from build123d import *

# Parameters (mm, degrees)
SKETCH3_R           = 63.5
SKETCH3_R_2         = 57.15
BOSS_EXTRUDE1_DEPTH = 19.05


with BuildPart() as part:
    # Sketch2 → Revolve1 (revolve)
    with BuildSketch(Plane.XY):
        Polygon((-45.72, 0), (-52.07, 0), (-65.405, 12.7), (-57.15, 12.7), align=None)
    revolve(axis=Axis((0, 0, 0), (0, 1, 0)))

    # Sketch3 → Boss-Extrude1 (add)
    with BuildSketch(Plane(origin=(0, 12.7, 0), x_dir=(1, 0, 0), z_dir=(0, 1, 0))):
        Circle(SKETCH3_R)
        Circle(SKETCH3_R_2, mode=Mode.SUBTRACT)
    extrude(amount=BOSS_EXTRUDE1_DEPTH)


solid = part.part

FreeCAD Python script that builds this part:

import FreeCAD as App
import Part
import Sketcher
Q = App.Units.Quantity

doc = App.newDocument("Part")
params = doc.addObject("Spreadsheet::Sheet", "Params")
for row, (alias, value) in enumerate([
    ("sketch1_width", "0.25 in"),
    ("sketch1_width2", "0.325 in"),
    ("revolution_angle", "360 deg"),
    ("sketch2_diameter", "5 in"),
    ("sketch2_diameter2", "4.5 in"),
    ("pad1_length", "0.75 in"),
], start=1):
    params.set(f"A{row}", alias)
    params.set(f"B{row}", "=" + value)
    params.setAlias(f"B{row}", alias)

body = doc.addObject("PartDesign::Body", "Body")

# Sketch on XY plane
sketch1 = doc.addObject("Sketcher::SketchObject", "Sketch")
body.addObject(sketch1)
sketch1.AttachmentSupport = (doc.XY_Plane, [""])
sketch1.MapMode = "FlatFace"
sketch1.addGeometry([
    Part.LineSegment(App.Vector(-52, 0, 0), App.Vector(-46, 0, 0)),
    Part.LineSegment(App.Vector(-46, 0, 0), App.Vector(-57, 13, 0)),
    Part.LineSegment(App.Vector(-57, 13, 0), App.Vector(-65, 13, 0)),
    Part.LineSegment(App.Vector(-65, 13, 0), App.Vector(-52, 0, 0)),
], False)
sketch1.addConstraint([
    Sketcher.Constraint("Coincident", 0, 2, 1, 1),
    Sketcher.Constraint("Coincident", 1, 2, 2, 1),
    Sketcher.Constraint("Coincident", 2, 2, 3, 1),
    Sketcher.Constraint("Coincident", 3, 2, 0, 1),
    Sketcher.Constraint("Horizontal", 0),
    Sketcher.Constraint("Horizontal", 2),
    Sketcher.Constraint("PointOnObject", 0, 2, -1),
    Sketcher.Constraint("DistanceX", 0, 1, 0, 2, Q("0.25 in")),
    Sketcher.Constraint("DistanceX", 0, 2, -1, 1, Q("1.8 in")),
    Sketcher.Constraint("DistanceY", -1, 1, 1, 2, Q("0.5 in")),
    Sketcher.Constraint("DistanceX", 1, 2, 3, 2, Q("0.2 in")),
    Sketcher.Constraint("DistanceX", 2, 2, 2, 1, Q("0.325 in")),
])
sketch1.setExpression("Constraints[7]", "Params.sketch1_width")
sketch1.setExpression("Constraints[11]", "Params.sketch1_width2")
revolution = doc.addObject("PartDesign::Revolution", "Revolution")
body.addObject(revolution)
revolution.Profile = sketch1
revolution.ReferenceAxis = (sketch1, ["V_Axis"])
revolution.setExpression("Angle", "Params.revolution_angle")

# Sketch on XZ plane
sketch2 = doc.addObject("Sketcher::SketchObject", "Sketch001")
body.addObject(sketch2)
sketch2.AttachmentSupport = (doc.XZ_Plane, [""])
sketch2.MapMode = "FlatFace"
sketch2.AttachmentOffset = App.Placement(App.Vector(0, 0, -0.5 * 25.4), App.Rotation())
sketch2.addGeometry([
    Part.Circle(App.Vector(0, 0, 0), App.Vector(0, 0, 1), 64),
    Part.Circle(App.Vector(0, 0, 0), App.Vector(0, 0, 1), 57),
], False)
sketch2.addConstraint([
    Sketcher.Constraint("Coincident", 0, 3, -1, 1),
    Sketcher.Constraint("Coincident", 1, 3, -1, 1),
    Sketcher.Constraint("Diameter", 0, Q("5 in")),
    Sketcher.Constraint("Diameter", 1, Q("4.5 in")),
])
sketch2.setExpression("Constraints[2]", "Params.sketch2_diameter")
sketch2.setExpression("Constraints[3]", "Params.sketch2_diameter2")
pad1 = doc.addObject("PartDesign::Pad", "Pad")
body.addObject(pad1)
pad1.Profile = sketch2
pad1.setExpression("Length", "Params.pad1_length")
pad1.Reversed = True

doc.recompute()
